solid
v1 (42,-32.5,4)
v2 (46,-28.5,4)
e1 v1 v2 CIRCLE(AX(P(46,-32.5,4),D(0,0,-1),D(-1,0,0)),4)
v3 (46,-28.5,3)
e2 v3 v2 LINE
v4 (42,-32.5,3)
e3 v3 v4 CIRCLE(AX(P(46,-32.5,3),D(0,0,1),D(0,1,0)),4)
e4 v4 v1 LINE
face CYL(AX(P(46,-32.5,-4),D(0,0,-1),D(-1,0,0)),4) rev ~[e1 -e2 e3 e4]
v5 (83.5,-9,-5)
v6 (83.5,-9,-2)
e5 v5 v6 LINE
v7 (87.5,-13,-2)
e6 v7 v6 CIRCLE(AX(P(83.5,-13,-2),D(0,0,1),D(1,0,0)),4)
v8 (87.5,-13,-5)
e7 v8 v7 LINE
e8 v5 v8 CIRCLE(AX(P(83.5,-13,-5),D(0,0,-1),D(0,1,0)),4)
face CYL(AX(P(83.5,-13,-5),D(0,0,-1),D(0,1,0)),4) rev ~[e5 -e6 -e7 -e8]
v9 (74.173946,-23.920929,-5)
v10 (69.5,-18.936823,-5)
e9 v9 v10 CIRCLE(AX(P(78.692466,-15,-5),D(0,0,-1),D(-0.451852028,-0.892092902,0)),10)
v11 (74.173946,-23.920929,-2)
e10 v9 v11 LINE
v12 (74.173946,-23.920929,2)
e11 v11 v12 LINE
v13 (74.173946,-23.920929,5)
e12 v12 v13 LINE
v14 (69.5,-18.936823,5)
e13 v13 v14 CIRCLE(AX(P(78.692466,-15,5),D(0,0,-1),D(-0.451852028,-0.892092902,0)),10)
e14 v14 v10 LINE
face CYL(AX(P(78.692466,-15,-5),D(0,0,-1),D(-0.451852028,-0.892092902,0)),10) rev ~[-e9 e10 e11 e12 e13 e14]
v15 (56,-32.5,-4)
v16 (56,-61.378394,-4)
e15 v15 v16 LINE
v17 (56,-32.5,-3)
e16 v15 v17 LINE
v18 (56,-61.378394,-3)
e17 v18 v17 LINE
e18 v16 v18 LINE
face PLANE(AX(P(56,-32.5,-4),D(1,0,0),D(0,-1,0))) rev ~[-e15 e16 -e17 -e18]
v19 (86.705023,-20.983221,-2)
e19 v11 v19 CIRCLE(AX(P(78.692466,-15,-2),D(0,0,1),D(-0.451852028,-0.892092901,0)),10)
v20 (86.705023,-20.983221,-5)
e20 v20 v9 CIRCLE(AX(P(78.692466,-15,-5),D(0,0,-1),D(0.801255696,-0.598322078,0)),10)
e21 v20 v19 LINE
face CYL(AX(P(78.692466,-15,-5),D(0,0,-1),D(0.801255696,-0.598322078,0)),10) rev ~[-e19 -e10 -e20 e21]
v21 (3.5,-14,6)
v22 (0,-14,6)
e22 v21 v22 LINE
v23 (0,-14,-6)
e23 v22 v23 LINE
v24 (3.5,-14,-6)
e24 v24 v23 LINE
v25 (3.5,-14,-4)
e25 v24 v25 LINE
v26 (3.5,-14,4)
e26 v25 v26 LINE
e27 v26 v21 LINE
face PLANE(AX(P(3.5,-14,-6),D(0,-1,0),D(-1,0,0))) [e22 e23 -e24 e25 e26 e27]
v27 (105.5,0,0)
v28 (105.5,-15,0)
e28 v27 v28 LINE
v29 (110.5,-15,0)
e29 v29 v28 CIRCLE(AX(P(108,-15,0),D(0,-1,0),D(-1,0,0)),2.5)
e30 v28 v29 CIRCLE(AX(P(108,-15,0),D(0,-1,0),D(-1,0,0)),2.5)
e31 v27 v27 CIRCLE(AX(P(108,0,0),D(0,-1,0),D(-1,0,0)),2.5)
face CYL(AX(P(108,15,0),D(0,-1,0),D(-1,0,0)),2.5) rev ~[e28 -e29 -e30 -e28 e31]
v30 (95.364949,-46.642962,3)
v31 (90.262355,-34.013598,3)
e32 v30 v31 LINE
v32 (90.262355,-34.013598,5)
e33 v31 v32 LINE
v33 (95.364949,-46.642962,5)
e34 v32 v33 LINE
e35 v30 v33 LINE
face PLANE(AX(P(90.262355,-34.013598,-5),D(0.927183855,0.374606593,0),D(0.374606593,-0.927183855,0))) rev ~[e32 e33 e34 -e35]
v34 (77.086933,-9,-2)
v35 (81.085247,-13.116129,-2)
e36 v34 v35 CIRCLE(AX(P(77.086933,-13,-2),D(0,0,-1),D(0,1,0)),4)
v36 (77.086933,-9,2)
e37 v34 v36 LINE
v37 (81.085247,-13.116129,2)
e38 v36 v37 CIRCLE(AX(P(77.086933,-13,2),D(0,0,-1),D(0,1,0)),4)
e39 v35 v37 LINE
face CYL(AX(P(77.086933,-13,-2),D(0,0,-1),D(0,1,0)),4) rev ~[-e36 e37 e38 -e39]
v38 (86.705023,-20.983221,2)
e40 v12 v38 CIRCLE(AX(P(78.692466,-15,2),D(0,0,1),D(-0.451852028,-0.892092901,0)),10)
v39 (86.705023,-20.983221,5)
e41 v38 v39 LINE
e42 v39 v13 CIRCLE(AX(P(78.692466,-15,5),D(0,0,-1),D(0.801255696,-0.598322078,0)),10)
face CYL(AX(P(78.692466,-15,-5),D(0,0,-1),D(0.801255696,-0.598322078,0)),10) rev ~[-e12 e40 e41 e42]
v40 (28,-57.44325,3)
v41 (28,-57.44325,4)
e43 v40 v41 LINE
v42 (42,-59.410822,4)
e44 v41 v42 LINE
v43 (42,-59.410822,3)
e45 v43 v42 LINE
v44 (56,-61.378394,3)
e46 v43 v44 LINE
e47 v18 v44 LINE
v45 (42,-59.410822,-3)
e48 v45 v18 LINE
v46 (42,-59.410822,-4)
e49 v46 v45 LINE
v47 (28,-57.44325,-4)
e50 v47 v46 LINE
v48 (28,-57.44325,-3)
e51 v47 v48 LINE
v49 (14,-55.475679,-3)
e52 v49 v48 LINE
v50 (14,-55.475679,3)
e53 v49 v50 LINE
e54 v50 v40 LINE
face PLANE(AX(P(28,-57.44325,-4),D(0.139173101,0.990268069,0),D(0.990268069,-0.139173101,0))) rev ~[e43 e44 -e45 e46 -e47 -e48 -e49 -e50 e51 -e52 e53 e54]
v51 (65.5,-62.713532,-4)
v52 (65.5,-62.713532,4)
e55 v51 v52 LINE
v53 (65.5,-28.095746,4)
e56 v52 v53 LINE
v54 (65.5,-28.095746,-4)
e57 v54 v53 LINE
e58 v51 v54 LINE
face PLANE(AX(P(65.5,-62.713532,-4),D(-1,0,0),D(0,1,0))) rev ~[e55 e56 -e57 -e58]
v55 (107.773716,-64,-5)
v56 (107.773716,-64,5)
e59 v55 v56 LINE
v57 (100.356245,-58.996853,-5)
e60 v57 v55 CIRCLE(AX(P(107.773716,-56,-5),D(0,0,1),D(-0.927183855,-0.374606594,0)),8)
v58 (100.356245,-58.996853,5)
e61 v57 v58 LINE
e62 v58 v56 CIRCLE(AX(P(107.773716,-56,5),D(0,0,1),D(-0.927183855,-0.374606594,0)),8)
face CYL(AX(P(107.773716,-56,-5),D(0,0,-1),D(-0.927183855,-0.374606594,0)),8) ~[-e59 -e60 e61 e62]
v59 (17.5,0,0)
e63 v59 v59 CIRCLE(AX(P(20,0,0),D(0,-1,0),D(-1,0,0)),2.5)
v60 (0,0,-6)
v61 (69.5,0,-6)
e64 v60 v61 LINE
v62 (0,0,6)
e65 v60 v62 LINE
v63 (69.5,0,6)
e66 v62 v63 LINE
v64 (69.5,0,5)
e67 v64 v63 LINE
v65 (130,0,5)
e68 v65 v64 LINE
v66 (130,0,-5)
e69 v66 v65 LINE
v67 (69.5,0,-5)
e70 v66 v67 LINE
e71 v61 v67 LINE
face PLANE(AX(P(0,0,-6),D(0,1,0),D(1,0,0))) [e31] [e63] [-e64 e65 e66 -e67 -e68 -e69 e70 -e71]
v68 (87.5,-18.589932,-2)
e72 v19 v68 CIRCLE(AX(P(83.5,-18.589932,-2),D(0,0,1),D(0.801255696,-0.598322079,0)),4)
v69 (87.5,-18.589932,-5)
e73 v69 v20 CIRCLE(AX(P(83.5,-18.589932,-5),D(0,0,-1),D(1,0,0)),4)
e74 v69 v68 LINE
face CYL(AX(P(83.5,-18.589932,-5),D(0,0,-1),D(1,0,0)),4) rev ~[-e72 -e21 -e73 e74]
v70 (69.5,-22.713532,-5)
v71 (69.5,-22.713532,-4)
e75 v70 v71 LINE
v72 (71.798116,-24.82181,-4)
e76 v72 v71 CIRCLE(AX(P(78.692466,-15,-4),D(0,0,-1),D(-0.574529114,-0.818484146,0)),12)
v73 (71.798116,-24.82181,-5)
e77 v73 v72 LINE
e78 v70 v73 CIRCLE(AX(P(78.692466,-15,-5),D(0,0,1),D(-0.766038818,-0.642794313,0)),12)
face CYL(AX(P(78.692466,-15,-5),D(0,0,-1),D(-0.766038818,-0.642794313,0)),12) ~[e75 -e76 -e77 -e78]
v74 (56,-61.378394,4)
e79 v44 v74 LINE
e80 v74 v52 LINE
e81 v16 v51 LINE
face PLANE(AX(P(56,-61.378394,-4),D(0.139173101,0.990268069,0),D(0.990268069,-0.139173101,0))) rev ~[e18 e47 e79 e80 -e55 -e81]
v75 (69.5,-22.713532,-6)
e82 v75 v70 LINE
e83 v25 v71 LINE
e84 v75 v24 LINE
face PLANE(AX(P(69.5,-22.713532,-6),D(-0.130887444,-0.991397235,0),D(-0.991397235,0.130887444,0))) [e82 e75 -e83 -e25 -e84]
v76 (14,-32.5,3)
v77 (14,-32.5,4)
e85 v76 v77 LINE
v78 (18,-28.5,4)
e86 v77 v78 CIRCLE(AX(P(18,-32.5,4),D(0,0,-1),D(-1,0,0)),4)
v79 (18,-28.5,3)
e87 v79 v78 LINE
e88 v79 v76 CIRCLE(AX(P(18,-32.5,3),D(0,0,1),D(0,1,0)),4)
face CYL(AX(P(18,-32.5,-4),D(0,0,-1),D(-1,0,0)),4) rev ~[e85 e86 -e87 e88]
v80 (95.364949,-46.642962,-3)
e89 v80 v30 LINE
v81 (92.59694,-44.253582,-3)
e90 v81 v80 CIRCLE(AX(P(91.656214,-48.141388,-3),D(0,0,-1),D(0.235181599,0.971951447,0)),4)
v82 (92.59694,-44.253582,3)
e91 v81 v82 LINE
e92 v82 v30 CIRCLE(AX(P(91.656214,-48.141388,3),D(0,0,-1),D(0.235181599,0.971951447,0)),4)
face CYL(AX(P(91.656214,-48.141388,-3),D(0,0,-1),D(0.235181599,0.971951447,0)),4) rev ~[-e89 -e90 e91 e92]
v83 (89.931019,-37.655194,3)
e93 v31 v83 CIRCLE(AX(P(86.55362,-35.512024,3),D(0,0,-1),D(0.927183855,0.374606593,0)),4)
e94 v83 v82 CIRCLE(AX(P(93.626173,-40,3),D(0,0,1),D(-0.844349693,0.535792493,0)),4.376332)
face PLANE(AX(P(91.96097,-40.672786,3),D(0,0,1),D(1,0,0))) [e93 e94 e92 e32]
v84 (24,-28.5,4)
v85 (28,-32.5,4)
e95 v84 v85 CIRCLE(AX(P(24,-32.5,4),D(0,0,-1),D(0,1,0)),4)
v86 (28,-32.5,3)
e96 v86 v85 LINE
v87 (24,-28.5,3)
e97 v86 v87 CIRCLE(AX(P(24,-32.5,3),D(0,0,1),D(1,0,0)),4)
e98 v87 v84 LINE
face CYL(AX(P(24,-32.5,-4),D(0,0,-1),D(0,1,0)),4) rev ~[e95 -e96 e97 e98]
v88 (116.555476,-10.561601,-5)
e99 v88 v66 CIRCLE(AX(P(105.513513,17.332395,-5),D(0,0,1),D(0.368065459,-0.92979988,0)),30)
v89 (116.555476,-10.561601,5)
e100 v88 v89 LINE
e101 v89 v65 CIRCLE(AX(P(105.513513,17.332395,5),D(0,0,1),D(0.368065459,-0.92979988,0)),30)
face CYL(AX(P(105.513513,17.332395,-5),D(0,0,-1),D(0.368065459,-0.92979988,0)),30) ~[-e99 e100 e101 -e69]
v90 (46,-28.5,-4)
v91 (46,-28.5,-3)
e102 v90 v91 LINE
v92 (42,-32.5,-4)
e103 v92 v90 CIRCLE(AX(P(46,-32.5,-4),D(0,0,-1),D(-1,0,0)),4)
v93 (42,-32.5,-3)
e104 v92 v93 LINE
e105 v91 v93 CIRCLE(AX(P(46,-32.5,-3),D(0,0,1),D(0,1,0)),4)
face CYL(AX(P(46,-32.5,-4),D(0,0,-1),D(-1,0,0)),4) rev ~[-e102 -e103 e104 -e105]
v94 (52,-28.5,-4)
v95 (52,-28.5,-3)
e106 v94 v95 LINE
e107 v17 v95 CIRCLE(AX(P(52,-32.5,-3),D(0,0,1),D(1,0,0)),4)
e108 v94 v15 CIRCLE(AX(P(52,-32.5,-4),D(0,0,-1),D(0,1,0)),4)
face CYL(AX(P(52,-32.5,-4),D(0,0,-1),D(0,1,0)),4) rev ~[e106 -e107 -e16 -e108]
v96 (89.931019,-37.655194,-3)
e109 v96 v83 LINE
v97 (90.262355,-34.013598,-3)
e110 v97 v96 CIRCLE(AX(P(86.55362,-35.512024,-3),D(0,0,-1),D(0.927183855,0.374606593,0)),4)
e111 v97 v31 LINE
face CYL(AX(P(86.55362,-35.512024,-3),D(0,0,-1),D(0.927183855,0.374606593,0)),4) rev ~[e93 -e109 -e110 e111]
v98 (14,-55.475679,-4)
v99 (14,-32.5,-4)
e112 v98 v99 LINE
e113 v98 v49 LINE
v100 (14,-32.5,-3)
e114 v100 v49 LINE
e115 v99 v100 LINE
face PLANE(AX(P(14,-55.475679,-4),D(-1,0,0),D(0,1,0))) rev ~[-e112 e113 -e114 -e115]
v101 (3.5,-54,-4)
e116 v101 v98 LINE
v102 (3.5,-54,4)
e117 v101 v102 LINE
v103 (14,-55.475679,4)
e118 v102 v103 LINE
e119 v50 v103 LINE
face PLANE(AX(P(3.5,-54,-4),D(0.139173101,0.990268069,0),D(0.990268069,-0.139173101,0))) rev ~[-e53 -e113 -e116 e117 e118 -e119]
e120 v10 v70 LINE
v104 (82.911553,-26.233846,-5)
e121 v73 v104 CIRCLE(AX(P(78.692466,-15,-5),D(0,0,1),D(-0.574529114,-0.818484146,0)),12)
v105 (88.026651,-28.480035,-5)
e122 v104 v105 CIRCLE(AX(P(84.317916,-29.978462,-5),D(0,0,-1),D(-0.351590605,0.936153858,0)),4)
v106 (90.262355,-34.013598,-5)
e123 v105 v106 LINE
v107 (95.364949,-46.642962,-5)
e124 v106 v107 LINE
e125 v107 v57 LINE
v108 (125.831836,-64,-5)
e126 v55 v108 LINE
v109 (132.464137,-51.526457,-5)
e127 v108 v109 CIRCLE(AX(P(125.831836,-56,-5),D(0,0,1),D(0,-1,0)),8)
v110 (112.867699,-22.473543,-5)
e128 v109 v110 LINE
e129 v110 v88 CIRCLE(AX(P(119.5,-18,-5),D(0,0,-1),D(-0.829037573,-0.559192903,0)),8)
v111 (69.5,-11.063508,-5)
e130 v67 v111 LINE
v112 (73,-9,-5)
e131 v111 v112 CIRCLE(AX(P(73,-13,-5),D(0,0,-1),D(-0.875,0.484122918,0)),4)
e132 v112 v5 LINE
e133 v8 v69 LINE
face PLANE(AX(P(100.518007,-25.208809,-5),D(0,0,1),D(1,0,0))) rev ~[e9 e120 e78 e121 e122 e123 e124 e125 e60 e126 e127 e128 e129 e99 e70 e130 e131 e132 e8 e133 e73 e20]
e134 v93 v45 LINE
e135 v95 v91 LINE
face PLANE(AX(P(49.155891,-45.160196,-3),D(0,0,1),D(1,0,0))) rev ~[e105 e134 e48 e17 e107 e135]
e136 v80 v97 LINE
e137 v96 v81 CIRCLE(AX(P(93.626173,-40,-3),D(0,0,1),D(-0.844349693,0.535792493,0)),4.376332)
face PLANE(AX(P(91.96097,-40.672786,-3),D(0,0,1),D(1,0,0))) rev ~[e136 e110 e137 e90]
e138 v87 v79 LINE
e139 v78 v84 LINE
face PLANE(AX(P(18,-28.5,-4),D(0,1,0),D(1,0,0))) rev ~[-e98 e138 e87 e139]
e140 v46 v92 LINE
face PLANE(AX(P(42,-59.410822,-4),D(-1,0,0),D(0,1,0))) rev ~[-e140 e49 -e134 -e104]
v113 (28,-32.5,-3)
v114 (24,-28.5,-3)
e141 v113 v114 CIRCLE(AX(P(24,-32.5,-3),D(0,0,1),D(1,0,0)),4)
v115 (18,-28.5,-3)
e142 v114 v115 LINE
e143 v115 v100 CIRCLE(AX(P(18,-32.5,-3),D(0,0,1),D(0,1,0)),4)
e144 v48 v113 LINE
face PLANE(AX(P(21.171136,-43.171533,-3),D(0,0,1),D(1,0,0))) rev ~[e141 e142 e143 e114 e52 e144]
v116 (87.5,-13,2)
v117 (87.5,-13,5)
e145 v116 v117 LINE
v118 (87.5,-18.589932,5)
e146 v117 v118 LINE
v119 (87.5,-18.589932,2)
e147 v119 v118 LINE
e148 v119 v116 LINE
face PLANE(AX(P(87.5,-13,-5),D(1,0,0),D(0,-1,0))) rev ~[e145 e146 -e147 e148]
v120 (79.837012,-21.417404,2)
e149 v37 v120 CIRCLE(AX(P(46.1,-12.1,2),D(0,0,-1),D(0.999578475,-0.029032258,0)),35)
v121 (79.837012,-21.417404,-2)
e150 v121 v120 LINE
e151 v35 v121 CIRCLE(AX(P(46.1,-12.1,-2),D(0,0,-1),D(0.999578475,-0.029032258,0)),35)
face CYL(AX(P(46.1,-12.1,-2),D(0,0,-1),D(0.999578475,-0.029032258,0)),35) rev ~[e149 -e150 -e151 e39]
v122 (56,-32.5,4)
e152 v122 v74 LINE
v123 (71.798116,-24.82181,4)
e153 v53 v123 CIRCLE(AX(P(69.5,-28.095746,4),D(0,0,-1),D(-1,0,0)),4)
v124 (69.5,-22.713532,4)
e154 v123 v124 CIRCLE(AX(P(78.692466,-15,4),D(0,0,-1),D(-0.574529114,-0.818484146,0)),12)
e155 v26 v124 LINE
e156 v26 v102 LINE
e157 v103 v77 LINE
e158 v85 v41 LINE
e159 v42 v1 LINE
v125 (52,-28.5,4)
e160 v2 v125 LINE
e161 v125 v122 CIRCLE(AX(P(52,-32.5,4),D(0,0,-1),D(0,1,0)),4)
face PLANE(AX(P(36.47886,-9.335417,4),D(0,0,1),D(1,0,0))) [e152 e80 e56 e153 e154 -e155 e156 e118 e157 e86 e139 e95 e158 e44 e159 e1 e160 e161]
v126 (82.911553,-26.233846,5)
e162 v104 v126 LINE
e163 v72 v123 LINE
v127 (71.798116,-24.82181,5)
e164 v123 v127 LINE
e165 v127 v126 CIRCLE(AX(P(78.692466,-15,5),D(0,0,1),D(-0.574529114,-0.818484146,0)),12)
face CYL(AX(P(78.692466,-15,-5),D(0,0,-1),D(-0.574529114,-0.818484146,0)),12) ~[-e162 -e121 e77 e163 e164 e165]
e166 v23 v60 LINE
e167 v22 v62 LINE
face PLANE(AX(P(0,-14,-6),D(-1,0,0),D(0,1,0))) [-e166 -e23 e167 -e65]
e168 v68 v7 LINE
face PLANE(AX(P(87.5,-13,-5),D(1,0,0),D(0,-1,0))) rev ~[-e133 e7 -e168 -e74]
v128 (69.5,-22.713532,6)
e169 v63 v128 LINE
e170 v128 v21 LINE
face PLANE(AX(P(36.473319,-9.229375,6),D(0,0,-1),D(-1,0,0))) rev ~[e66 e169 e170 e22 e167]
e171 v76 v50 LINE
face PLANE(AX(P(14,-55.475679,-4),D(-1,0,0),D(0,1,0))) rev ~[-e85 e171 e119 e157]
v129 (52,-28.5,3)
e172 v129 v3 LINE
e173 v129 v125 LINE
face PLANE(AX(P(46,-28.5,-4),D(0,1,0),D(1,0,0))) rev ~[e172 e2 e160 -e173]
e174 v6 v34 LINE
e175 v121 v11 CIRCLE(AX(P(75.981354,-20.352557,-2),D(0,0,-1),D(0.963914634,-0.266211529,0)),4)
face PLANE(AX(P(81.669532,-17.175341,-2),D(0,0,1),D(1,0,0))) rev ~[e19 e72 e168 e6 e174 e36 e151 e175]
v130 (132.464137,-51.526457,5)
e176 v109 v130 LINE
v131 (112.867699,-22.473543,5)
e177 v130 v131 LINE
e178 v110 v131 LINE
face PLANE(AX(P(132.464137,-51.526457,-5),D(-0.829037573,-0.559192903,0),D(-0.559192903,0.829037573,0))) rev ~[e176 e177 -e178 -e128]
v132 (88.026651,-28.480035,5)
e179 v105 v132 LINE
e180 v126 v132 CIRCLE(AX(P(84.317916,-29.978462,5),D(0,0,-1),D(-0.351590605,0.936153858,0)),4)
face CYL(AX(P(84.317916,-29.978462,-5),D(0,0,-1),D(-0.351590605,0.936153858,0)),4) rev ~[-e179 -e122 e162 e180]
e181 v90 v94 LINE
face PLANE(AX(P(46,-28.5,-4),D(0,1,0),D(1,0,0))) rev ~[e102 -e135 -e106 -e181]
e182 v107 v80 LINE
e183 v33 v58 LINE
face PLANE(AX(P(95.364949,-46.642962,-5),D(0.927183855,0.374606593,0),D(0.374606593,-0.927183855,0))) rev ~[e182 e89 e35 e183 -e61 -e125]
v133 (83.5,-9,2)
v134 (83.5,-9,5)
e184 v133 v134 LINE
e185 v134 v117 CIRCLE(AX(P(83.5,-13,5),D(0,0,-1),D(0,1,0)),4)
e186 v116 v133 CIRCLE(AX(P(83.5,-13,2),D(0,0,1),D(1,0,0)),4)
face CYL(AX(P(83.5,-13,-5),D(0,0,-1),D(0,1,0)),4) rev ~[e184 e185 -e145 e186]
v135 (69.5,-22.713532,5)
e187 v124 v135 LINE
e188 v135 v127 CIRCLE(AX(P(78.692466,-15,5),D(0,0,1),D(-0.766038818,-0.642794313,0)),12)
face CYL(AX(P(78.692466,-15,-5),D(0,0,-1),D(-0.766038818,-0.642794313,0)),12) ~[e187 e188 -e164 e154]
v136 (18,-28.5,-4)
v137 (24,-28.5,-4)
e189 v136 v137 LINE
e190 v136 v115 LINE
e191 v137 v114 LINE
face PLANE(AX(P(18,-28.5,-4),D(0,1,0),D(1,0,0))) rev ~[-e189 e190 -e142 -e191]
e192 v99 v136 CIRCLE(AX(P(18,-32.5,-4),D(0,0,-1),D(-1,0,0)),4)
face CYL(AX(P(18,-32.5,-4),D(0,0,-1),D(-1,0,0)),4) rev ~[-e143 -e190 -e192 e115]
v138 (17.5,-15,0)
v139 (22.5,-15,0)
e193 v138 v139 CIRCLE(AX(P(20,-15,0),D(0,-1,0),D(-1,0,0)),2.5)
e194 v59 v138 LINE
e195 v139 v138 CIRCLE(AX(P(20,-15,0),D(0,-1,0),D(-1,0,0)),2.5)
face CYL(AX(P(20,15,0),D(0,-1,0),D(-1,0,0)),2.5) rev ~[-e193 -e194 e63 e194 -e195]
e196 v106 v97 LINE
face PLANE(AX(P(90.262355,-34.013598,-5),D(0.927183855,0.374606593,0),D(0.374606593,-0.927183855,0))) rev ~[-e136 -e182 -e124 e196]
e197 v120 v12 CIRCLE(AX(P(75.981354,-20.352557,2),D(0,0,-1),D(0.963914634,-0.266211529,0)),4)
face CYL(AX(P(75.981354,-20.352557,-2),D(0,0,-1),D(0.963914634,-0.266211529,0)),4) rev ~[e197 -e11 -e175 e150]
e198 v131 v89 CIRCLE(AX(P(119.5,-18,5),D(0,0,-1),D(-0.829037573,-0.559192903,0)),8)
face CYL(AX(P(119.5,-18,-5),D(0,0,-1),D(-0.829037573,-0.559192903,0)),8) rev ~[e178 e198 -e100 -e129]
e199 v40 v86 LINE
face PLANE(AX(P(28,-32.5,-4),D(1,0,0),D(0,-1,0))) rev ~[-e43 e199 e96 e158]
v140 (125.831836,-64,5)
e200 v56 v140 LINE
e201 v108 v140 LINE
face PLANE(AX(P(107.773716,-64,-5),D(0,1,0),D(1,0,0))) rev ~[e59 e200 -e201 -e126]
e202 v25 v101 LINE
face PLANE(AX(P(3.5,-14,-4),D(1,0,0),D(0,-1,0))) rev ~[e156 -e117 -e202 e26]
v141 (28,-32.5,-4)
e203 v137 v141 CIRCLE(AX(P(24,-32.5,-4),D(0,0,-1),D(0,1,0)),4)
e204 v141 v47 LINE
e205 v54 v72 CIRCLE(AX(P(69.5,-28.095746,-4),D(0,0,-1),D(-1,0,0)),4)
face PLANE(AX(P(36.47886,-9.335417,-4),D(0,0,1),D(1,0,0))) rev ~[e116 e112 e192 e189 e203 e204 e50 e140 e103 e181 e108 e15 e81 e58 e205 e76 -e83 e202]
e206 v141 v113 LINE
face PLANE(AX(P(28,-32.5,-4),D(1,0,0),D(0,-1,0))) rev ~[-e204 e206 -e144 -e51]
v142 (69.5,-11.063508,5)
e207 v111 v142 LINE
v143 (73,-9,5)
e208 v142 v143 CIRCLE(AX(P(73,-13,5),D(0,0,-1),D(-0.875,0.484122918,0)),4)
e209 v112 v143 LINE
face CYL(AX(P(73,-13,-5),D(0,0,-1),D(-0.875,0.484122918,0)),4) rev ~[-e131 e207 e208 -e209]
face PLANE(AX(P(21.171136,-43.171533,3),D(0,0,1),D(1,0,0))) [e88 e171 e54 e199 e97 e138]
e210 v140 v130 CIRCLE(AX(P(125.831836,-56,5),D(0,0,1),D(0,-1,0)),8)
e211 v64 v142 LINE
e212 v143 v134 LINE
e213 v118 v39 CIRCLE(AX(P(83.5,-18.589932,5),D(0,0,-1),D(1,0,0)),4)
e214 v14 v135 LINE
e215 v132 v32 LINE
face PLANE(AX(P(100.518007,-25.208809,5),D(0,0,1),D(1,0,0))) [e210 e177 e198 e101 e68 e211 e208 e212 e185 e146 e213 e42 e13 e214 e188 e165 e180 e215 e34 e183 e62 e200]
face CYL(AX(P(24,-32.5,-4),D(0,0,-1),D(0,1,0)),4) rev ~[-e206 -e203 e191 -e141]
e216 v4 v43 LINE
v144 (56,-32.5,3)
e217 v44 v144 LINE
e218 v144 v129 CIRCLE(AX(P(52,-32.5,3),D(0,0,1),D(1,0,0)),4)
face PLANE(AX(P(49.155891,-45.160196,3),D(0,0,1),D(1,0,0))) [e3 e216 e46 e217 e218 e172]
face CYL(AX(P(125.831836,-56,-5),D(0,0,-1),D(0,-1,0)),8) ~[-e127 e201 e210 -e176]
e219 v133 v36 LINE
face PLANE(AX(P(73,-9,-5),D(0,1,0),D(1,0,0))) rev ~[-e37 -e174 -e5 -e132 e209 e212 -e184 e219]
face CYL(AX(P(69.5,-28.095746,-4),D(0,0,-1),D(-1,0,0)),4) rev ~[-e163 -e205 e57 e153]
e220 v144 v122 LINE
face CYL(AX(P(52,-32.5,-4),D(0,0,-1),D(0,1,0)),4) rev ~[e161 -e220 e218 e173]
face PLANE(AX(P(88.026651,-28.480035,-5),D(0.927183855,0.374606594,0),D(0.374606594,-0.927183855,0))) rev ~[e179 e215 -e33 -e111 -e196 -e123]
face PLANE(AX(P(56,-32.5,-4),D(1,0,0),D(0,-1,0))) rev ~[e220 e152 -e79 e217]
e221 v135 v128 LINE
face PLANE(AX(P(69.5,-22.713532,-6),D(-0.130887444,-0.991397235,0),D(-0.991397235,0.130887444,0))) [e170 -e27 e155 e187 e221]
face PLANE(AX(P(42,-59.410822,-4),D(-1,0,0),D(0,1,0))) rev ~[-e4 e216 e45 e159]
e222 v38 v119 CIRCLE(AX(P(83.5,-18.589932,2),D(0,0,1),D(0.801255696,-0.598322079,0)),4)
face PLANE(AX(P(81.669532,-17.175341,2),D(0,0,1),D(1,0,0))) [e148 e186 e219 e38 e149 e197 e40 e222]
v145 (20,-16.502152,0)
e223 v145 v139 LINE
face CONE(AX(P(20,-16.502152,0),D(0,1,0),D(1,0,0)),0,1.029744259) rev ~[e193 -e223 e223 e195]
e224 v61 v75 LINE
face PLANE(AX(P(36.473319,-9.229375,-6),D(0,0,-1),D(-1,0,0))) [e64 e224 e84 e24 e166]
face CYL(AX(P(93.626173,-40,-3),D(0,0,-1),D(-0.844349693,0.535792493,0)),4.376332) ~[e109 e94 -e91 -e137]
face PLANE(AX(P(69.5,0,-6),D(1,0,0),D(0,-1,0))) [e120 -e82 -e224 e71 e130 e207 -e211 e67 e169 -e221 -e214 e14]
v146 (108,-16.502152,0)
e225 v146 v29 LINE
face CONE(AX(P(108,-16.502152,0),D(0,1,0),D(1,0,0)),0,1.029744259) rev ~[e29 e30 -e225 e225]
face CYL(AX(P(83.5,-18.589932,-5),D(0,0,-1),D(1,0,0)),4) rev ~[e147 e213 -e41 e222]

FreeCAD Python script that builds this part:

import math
import FreeCAD as App
import Part
import Sketcher
Q = App.Units.Quantity


def add_polygon(sketch, points):
    """Adds a closed chain of lines whose ends are joined by coincident constraints."""
    first, n = sketch.GeometryCount, len(points)
    for a, b in zip(points, points[1:] + points[:1]):
        sketch.addGeometry(Part.LineSegment(App.Vector(*a, 0), App.Vector(*b, 0)), False)
    for i in range(n):
        sketch.addConstraint(Sketcher.Constraint("Coincident", first + i, 2, first + (i + 1) % n, 1))

doc = App.newDocument("Part")
params = doc.addObject("Spreadsheet::Sheet", "Params")
for row, (alias, value) in enumerate([
    ("sketch1_radius", "4 mm"),
    ("sketch1_radius2", "12 mm"),
    ("sketch1_radius3", "10 mm"),
    ("sketch1_width", "6 mm"),
    ("sketch1_height", "14 mm"),
    ("pad1_length", "4 mm"),
    ("pad1_length2", "4 mm"),
    ("sketch2_radius", "4 mm"),
    ("sketch2_radius2", "10 mm"),
    ("sketch2_radius3", "12 mm"),
    ("sketch2_radius4", "8 mm"),
    ("sketch2_radius5", "30 mm"),
    ("pad2_length", "5 mm"),
    ("pad2_length2", "5 mm"),
    ("sketch3_radius", "4 mm"),
    ("sketch3_radius2", "10 mm"),
    ("sketch3_radius3", "35 mm"),
    ("pad3_length", "2 mm"),
    ("pad3_length2", "2 mm"),
    ("sketch4_radius", "4 mm"),
    ("pad4_length", "3 mm"),
    ("pad4_length2", "3 mm"),
    ("sketch5_radius", "4 mm"),
    ("sketch5_width", "6 mm"),
    ("pad5_length", "3 mm"),
    ("pad5_length2", "3 mm"),
    ("sketch6_height", "14 mm"),
    ("sketch6_width", "69.5 mm"),
    ("sketch6_width2", "3.5 mm"),
    ("pad6_length", "6 mm"),
    ("pad6_length2", "6 mm"),
    ("sketch7_diameter", "5 mm"),
    ("hole_diameter", "5 mm"),
    ("hole_depth", "15 mm"),
], start=1):
    params.set(f"A{row}", alias)
    params.set(f"B{row}", "=" + value)
    params.setAlias(f"B{row}", alias)

body = doc.addObject("PartDesign::Body", "Body")

sketch1 = body.newObject("Sketcher::SketchObject", "Sketch")
sketch1.AttachmentSupport = (doc.getObject("XY_Plane"), [""])
sketch1.MapMode = "FlatFace"
sketch1.addGeometry([
    Part.LineSegment(App.Vector(69.5, 0, 0), App.Vector(0, 0, 0)),
    Part.LineSegment(App.Vector(0, 0, 0), App.Vector(0, -14, 0)),
    Part.LineSegment(App.Vector(0, -14, 0), App.Vector(3.5, -14, 0)),
    Part.LineSegment(App.Vector(3.5, -14, 0), App.Vector(3.5, -54, 0)),
    Part.LineSegment(App.Vector(3.5, -54, 0), App.Vector(14, -55.5, 0)),
    Part.LineSegment(App.Vector(14, -55.5, 0), App.Vector(14, -32.5, 0)),
    Part.ArcOfCircle(Part.Circle(App.Vector(18, -32.5, 0), App.Vector(0, 0, 1), 4), math.radians(90), math.radians(180)),
    Part.LineSegment(App.Vector(18, -28.5, 0), App.Vector(24, -28.5, 0)),
    Part.ArcOfCircle(Part.Circle(App.Vector(24, -32.5, 0), App.Vector(0, 0, 1), 4), math.radians(0), math.radians(90)),
    Part.LineSegment(App.Vector(28, -32.5, 0), App.Vector(28, -57.4, 0)),
    Part.LineSegment(App.Vector(28, -57.4, 0), App.Vector(42, -59.4, 0)),
    Part.LineSegment(App.Vector(42, -59.4, 0), App.Vector(42, -32.5, 0)),
    Part.ArcOfCircle(Part.Circle(App.Vector(46, -32.5, 0), App.Vector(0, 0, 1), 4), math.radians(90), math.radians(180)),
    Part.LineSegment(App.Vector(46, -28.5, 0), App.Vector(52, -28.5, 0)),
    Part.ArcOfCircle(Part.Circle(App.Vector(52, -32.5, 0), App.Vector(0, 0, 1), 4), math.radians(0), math.radians(90)),
    Part.LineSegment(App.Vector(56, -32.5, 0), App.Vector(56, -61.4, 0)),
    Part.LineSegment(App.Vector(56, -61.4, 0), App.Vector(65.5, -62.7, 0)),
    Part.LineSegment(App.Vector(65.5, -62.7, 0), App.Vector(65.5, -28.1, 0)),
    Part.ArcOfCircle(Part.Circle(App.Vector(69.5, -28.1, 0), App.Vector(0, 0, 1), 4), math.radians(55), math.radians(180)),
    Part.ArcOfCircle(Part.Circle(App.Vector(78.7, -15, 0), App.Vector(0, 0, 1), 12), math.radians(-140), math.radians(-125.07)),
    Part.LineSegment(App.Vector(69.5, -22.7, 0), App.Vector(69.5, -18.9, 0)),
    Part.ArcOfCircle(Part.Circle(App.Vector(78.7, -15, 0), App.Vector(0, 0, 1), 10), math.radians(-165.75), math.radians(-156.82)),
    Part.LineSegment(App.Vector(69, -17.5, 0), App.Vector(69, -13, 0)),
    Part.ArcOfCircle(Part.Circle(App.Vector(73, -13, 0), App.Vector(0, 0, 1), 4), math.radians(151), math.radians(180)),
    Part.LineSegment(App.Vector(69.5, -11.1, 0), App.Vector(69.5, 0, 0)),
], False)
sketch1.addConstraint([
    Sketcher.Constraint("Coincident", 0, 2, 1, 1),
    Sketcher.Constraint("Coincident", 1, 2, 2, 1),
    Sketcher.Constraint("Coincident", 2, 2, 3, 1),
    Sketcher.Constraint("Coincident", 3, 2, 4, 1),
    Sketcher.Constraint("Coincident", 4, 2, 5, 1),
    Sketcher.Constraint("Tangent", 5, 2, 6, 2),
    Sketcher.Constraint("Tangent", 6, 1, 7, 1),
    Sketcher.Constraint("Tangent", 7, 2, 8, 2),
    Sketcher.Constraint("Tangent", 8, 1, 9, 1),
    Sketcher.Constraint("Coincident", 9, 2, 10, 1),
    Sketcher.Constraint("Coincident", 10, 2, 11, 1),
    Sketcher.Constraint("Tangent", 11, 2, 12, 2),
    Sketcher.Constraint("Tangent", 12, 1, 13, 1),
    Sketcher.Constraint("Tangent", 13, 2, 14, 2),
    Sketcher.Constraint("Tangent", 14, 1, 15, 1),
    Sketcher.Constraint("Coincident", 15, 2, 16, 1),
    Sketcher.Constraint("Coincident", 16, 2, 17, 1),
    Sketcher.Constraint("Tangent", 17, 2, 18, 2),
    Sketcher.Constraint("Tangent", 18, 1, 19, 2),
    Sketcher.Constraint("Coincident", 19, 1, 20, 1),
    Sketcher.Constraint("Coincident", 20, 2, 21, 2),
    Sketcher.Constraint("Coincident", 21, 1, 22, 1),
    Sketcher.Constraint("Tangent", 22, 2, 23, 2),
    Sketcher.Constraint("Coincident", 23, 1, 24, 1),
    Sketcher.Constraint("Coincident", 24, 2, 0, 1),
    Sketcher.Constraint("Horizontal", 0),
    Sketcher.Constraint("Vertical", 1),
    Sketcher.Constraint("Horizontal", 2),
    Sketcher.Constraint("Vertical", 3),
    Sketcher.Constraint("Vertical", 5),
    Sketcher.Constraint("Horizontal", 7),
    Sketcher.Constraint("Vertical", 9),
    Sketcher.Constraint("Vertical", 11),
    Sketcher.Constraint("Horizontal", 13),
    Sketcher.Constraint("Vertical", 15),
    Sketcher.Constraint("Vertical", 17),
    Sketcher.Constraint("Vertical", 20),
    Sketcher.Constraint("Vertical", 22),
    Sketcher.Constraint("Vertical", 24),
    Sketcher.Constraint("Coincident", 0, 2, -1, 1),
    Sketcher.Constraint("Coincident", 21, 3, 19, 3),
    Sketcher.Constraint("Equal", 6, 8),
    Sketcher.Constraint("Equal", 8, 12),
    Sketcher.Constraint("Equal", 12, 14),
    Sketcher.Constraint("Equal", 14, 18),
    Sketcher.Constraint("Equal", 18, 23),
    Sketcher.Constraint("Parallel", 4, 10),
    Sketcher.Constraint("Parallel", 10, 16),
    Sketcher.Constraint("Horizontal", 8, 3, 12, 3),
    Sketcher.Constraint("Vertical", 18, 3, 19, 1),
    Sketcher.Constraint("Vertical", 20, 2, 23, 1),
    Sketcher.Constraint("Equal", 7, 13),
    Sketcher.Constraint("Radius", 6, Q("4 mm")),
    Sketcher.Constraint("Radius", 19, Q("12 mm")),
    Sketcher.Constraint("Radius", 21, Q("10 mm")),
    Sketcher.Constraint("DistanceX", 7, 1, 7, 2, Q("6 mm")),
    Sketcher.Constraint("DistanceY", 1, 2, 1, 1, Q("14 mm")),
    Sketcher.Constraint("DistanceY", 3, 2, 3, 1, Q("40 mm")),
    Sketcher.Constraint("Angle", 4, Q("-8 deg")),
    Sketcher.Constraint("DistanceX", 0, 2, 0, 1, Q("69.5 mm")),
    Sketcher.Constraint("DistanceX", 2, 1, 2, 2, Q("3.5 mm")),
    Sketcher.Constraint("DistanceX", -1, 1, 6, 3, Q("18 mm")),
    Sketcher.Constraint("DistanceX", -1, 1, 12, 3, Q("46 mm")),
    Sketcher.Constraint("DistanceY", 19, 3, -1, 1, Q("15 mm")),
    Sketcher.Constraint("DistanceX", -1, 1, 23, 3, Q("73 mm")),
    Sketcher.Constraint("DistanceY", 23, 3, -1, 1, Q("13 mm")),
    Sketcher.Constraint("DistanceY", 6, 3, -1, 1, Q("32.5 mm")),
    Sketcher.Constraint("DistanceY", 9, 2, 9, 1, Q("24.94325 mm")),
    Sketcher.Constraint("DistanceY", 20, 1, 20, 2, Q("3.776709 mm")),
    Sketcher.Constraint("DistanceY", 15, 2, 15, 1, Q("28.878394 mm")),
])
sketch1.setExpression("Constraints[52]", "Params.sketch1_radius")
sketch1.setExpression("Constraints[53]", "Params.sketch1_radius2")
sketch1.setExpression("Constraints[54]", "Params.sketch1_radius3")
sketch1.setExpression("Constraints[55]", "Params.sketch1_width")
sketch1.setExpression("Constraints[56]", "Params.sketch1_height")
pad1 = body.newObject("PartDesign::Pad", "Pad")
pad1.Profile = sketch1
pad1.Type = "TwoLengths"
pad1.setExpression("Length", "Params.pad1_length")
pad1.setExpression("Length2", "Params.pad1_length2")

sketch2 = body.newObject("Sketcher::SketchObject", "Sketch001")
sketch2.AttachmentSupport = (doc.getObject("XY_Plane"), [""])
sketch2.MapMode = "FlatFace"
sketch2.addGeometry([
    Part.LineSegment(App.Vector(130, 0, 0), App.Vector(69.5, 0, 0)),
    Part.LineSegment(App.Vector(69.5, 0, 0), App.Vector(69.5, -11.1, 0)),
    Part.ArcOfCircle(Part.Circle(App.Vector(73, -13, 0), App.Vector(0, 0, 1), 4), math.radians(90), math.radians(151)),
    Part.LineSegment(App.Vector(73, -9, 0), App.Vector(83.5, -9, 0)),
    Part.ArcOfCircle(Part.Circle(App.Vector(83.5, -13, 0), App.Vector(0, 0, 1), 4), math.radians(0), math.radians(90)),
    Part.LineSegment(App.Vector(87.5, -13, 0), App.Vector(87.5, -18.6, 0)),
    Part.ArcOfCircle(Part.Circle(App.Vector(83.5, -18.6, 0), App.Vector(0, 0, 1), 4), math.radians(-37), math.radians(0)),
    Part.ArcOfCircle(Part.Circle(App.Vector(78.7, -15, 0), App.Vector(0, 0, 1), 10), math.radians(-117), math.radians(-37)),
    Part.ArcOfCircle(Part.Circle(App.Vector(78.7, -15, 0), App.Vector(0, 0, 1), 10), math.radians(-157), math.radians(-117)),
    Part.LineSegment(App.Vector(69.5, -18.9, 0), App.Vector(69.5, -22.7, 0)),
    Part.ArcOfCircle(Part.Circle(App.Vector(78.7, -15, 0), App.Vector(0, 0, 1), 12), math.radians(-140), math.radians(-125.07)),
    Part.ArcOfCircle(Part.Circle(App.Vector(78.7, -15, 0), App.Vector(0, 0, 1), 12), math.radians(-125), math.radians(-69)),
    Part.ArcOfCircle(Part.Circle(App.Vector(84.3, -30, 0), App.Vector(0, 0, 1), 4), math.radians(22), math.radians(111)),
    Part.LineSegment(App.Vector(88, -28.5, 0), App.Vector(90.3, -34, 0)),
    Part.LineSegment(App.Vector(90.3, -34, 0), App.Vector(95.4, -46.6, 0)),
    Part.LineSegment(App.Vector(95.4, -46.6, 0), App.Vector(100.4, -59, 0)),
    Part.ArcOfCircle(Part.Circle(App.Vector(107.8, -56, 0), App.Vector(0, 0, 1), 8), math.radians(-158), math.radians(-90)),
    Part.LineSegment(App.Vector(107.8, -64, 0), App.Vector(125.8, -64, 0)),
    Part.ArcOfCircle(Part.Circle(App.Vector(125.8, -56, 0), App.Vector(0, 0, 1), 8), math.radians(-90), math.radians(34)),
    Part.LineSegment(App.Vector(132.5, -51.5, 0), App.Vector(112.9, -22.5, 0)),
    Part.ArcOfCircle(Part.Circle(App.Vector(119.5, -18, 0), App.Vector(0, 0, 1), 8), math.radians(112), math.radians(214)),
    Part.ArcOfCircle(Part.Circle(App.Vector(105.5, 17.3, 0), App.Vector(0, 0, 1), 30), math.radians(-68), math.radians(-35)),
], False)
sketch2.addConstraint([
    Sketcher.Constraint("Coincident", 0, 2, 1, 1),
    Sketcher.Constraint("Coincident", 1, 2, 2, 2),
    Sketcher.Constraint("Tangent", 2, 1, 3, 1),
    Sketcher.Constraint("Tangent", 3, 2, 4, 2),
    Sketcher.Constraint("Tangent", 4, 1, 5, 1),
    Sketcher.Constraint("Tangent", 5, 2, 6, 2),
    Sketcher.Constraint("Tangent", 6, 1, 7, 2),
    Sketcher.Constraint("Tangent", 7, 1, 8, 2),
    Sketcher.Constraint("Coincident", 8, 1, 9, 1),
    Sketcher.Constraint("Coincident", 9, 2, 10, 1),
    Sketcher.Constraint("Tangent", 10, 2, 11, 1),
    Sketcher.Constraint("Tangent", 11, 2, 12, 2),
    Sketcher.Constraint("Tangent", 12, 1, 13, 1),
    Sketcher.Constraint("Coincident", 13, 2, 14, 1),
    Sketcher.Constraint("Coincident", 14, 2, 15, 1),
    Sketcher.Constraint("Tangent", 15, 2, 16, 1),
    Sketcher.Constraint("Tangent", 16, 2, 17, 1),
    Sketcher.Constraint("Tangent", 17, 2, 18, 1),
    Sketcher.Constraint("Tangent", 18, 2, 19, 1),
    Sketcher.Constraint("Tangent", 19, 2, 20, 2),
    Sketcher.Constraint("Tangent", 20, 1, 21, 1),
    Sketcher.Constraint("Coincident", 21, 2, 0, 1),
    Sketcher.Constraint("Horizontal", 0),
    Sketcher.Constraint("Vertical", 1),
    Sketcher.Constraint("Horizontal", 3),
    Sketcher.Constraint("Vertical", 5),
    Sketcher.Constraint("Vertical", 9),
    Sketcher.Constraint("Horizontal", 17),
    Sketcher.Constraint("Coincident", 10, 3, 7, 3),
    Sketcher.Constraint("Equal", 2, 4),
    Sketcher.Constraint("Equal", 4, 6),
    Sketcher.Constraint("Equal", 7, 8),
    Sketcher.Constraint("Equal", 10, 11),
    Sketcher.Constraint("Equal", 6, 12),
    Sketcher.Constraint("Equal", 16, 18),
    Sketcher.Constraint("Equal", 18, 20),
    Sketcher.Constraint("PointOnObject", 0, 2, -1),
    Sketcher.Constraint("Parallel", 13, 14),
    Sketcher.Constraint("Parallel", 14, 15),
    Sketcher.Constraint("Vertical", 1, 2, 8, 1),
    Sketcher.Constraint("Radius", 2, Q("4 mm")),
    Sketcher.Constraint("Radius", 7, Q("10 mm")),
    Sketcher.Constraint("Radius", 10, Q("12 mm")),
    Sketcher.Constraint("Radius", 16, Q("8 mm")),
    Sketcher.Constraint("Radius", 21, Q("30 mm")),
    Sketcher.Constraint("Angle", 13, Q("-68 deg")),
    Sketcher.Constraint("Angle", 19, Q("124 deg")),
    Sketcher.Constraint("DistanceX", 0, 2, 0, 1, Q("60.5 mm")),
    Sketcher.Constraint("DistanceX", 3, 1, 3, 2, Q("10.5 mm")),
    Sketcher.Constraint("DistanceX", -1, 1, 2, 3, Q("73 mm")),
    Sketcher.Constraint("DistanceY", 2, 3, -1, 1, Q("13 mm")),
    Sketcher.Constraint("DistanceY", 7, 3, -1, 1, Q("15 mm")),
    Sketcher.Constraint("DistanceY", 16, 3, -1, 1, Q("56 mm")),
    Sketcher.Constraint("DistanceY", 20, 3, -1, 1, Q("18 mm")),
    Sketcher.Constraint("DistanceX", -1, 1, 21, 2, Q("130 mm")),
    Sketcher.Constraint("DistanceX", 6, 3, 20, 3, Q("36 mm")),
    Sketcher.Constraint("Distance", 15, Q("13.324101 mm")),
    Sketcher.Constraint("DistanceX", 17, 1, 17, 2, Q("18.05812 mm")),
    Sketcher.Constraint("DistanceY", 9, 2, 9, 1, Q("3.776709 mm")),
    Sketcher.Constraint("Distance", 13, Q("5.968139 mm")),
    Sketcher.Constraint("DistanceY", 7, 1, -1, 1, Q("23.920929 mm")),
    Sketcher.Constraint("DistanceY", 10, 2, -1, 1, Q("24.82181 mm")),
])
sketch2.setExpression("Constraints[40]", "Params.sketch2_radius")
sketch2.setExpression("Constraints[41]", "Params.sketch2_radius2")
sketch2.setExpression("Constraints[42]", "Params.sketch2_radius3")
sketch2.setExpression("Constraints[43]", "Params.sketch2_radius4")
sketch2.setExpression("Constraints[44]", "Params.sketch2_radius5")
pad2 = body.newObject("PartDesign::Pad", "Pad001")
pad2.Profile = sketch2
pad2.Type = "TwoLengths"
pad2.setExpression("Length", "Params.pad2_length")
pad2.setExpression("Length2", "Params.pad2_length2")

sketch3 = body.newObject("Sketcher::SketchObject", "Sketch002")
sketch3.AttachmentSupport = (doc.getObject("XY_Plane"), [""])
sketch3.MapMode = "FlatFace"
sketch3.addGeometry([
    Part.ArcOfCircle(Part.Circle(App.Vector(76, -20.4, 0), App.Vector(0, 0, 1), 4), math.radians(-117), math.radians(-15)),
    Part.ArcOfCircle(Part.Circle(App.Vector(78.7, -15, 0), App.Vector(0, 0, 1), 10), math.radians(-117), math.radians(-37)),
    Part.ArcOfCircle(Part.Circle(App.Vector(83.5, -18.6, 0), App.Vector(0, 0, 1), 4), math.radians(-37), math.radians(0)),
    Part.LineSegment(App.Vector(87.5, -18.6, 0), App.Vector(87.5, -13, 0)),
    Part.ArcOfCircle(Part.Circle(App.Vector(83.5, -13, 0), App.Vector(0, 0, 1), 4), math.radians(0), math.radians(90)),
    Part.LineSegment(App.Vector(83.5, -9, 0), App.Vector(77.1, -9, 0)),
    Part.ArcOfCircle(Part.Circle(App.Vector(77.1, -13, 0), App.Vector(0, 0, 1), 4), math.radians(-2), math.radians(90)),
    Part.ArcOfCircle(Part.Circle(App.Vector(46.1, -12.1, 0), App.Vector(0, 0, 1), 35), math.radians(-15.44), math.radians(-1.66)),
], False)
sketch3.addConstraint([
    Sketcher.Constraint("Tangent", 0, 1, 1, 1),
    Sketcher.Constraint("Tangent", 1, 2, 2, 1),
    Sketcher.Constraint("Tangent", 2, 2, 3, 1),
    Sketcher.Constraint("Tangent", 3, 2, 4, 1),
    Sketcher.Constraint("Tangent", 4, 2, 5, 1),
    Sketcher.Constraint("Tangent", 5, 2, 6, 2),
    Sketcher.Constraint("Tangent", 6, 1, 7, 2),
    Sketcher.Constraint("Tangent", 7, 1, 0, 2),
    Sketcher.Constraint("Vertical", 3),
    Sketcher.Constraint("Horizontal", 5),
    Sketcher.Constraint("Equal", 0, 2),
    Sketcher.Constraint("Equal", 2, 4),
    Sketcher.Constraint("Equal", 4, 6),
    Sketcher.Constraint("Radius", 0, Q("4 mm")),
    Sketcher.Constraint("Radius", 1, Q("10 mm")),
    Sketcher.Constraint("Radius", 7, Q("35 mm")),
    Sketcher.Constraint("DistanceY", 1, 3, -1, 1, Q("15 mm")),
    Sketcher.Constraint("DistanceY", 4, 3, -1, 1, Q("13 mm")),
    Sketcher.Constraint("DistanceX", -1, 1, 2, 3, Q("83.5 mm")),
    Sketcher.Constraint("DistanceX", -1, 1, 7, 3, Q("46.1 mm")),
    Sketcher.Constraint("DistanceY", 7, 3, -1, 1, Q("12.1 mm")),
    Sketcher.Constraint("DistanceY", 3, 1, 3, 2, Q("5.589932 mm")),
])
sketch3.setExpression("Constraints[13]", "Params.sketch3_radius")
sketch3.setExpression("Constraints[14]", "Params.sketch3_radius2")
sketch3.setExpression("Constraints[15]", "Params.sketch3_radius3")
pad3 = body.newObject("PartDesign::Pad", "Pad002")
pad3.Profile = sketch3
pad3.Type = "TwoLengths"
pad3.setExpression("Length", "Params.pad3_length")
pad3.setExpression("Length2", "Params.pad3_length2")

sketch4 = body.newObject("Sketcher::SketchObject", "Sketch003")
sketch4.AttachmentSupport = (doc.getObject("XY_Plane"), [""])
sketch4.MapMode = "FlatFace"
sketch4.addGeometry([
    Part.LineSegment(App.Vector(95.4, -46.6, 0), App.Vector(90.3, -34, 0)),
    Part.ArcOfCircle(Part.Circle(App.Vector(86.6, -35.5, 0), App.Vector(0, 0, 1), 4), math.radians(-32), math.radians(22)),
    Part.ArcOfCircle(Part.Circle(App.Vector(93.6, -40, 0), App.Vector(0, 0, 1), 4.4), math.radians(148), math.radians(256)),
    Part.ArcOfCircle(Part.Circle(App.Vector(91.7, -48.1, 0), App.Vector(0, 0, 1), 4), math.radians(22), math.radians(76)),
], False)
sketch4.addConstraint([
    Sketcher.Constraint("Tangent", 0, 2, 1, 2),
    Sketcher.Constraint("Tangent", 1, 1, 2, 1),
    Sketcher.Constraint("Tangent", 2, 2, 3, 2),
    Sketcher.Constraint("Tangent", 3, 1, 0, 1),
    Sketcher.Constraint("Equal", 1, 3),
    Sketcher.Constraint("Radius", 1, Q("4 mm")),
    Sketcher.Constraint("Angle", 0, Q("112 deg")),
    Sketcher.Constraint("DistanceY", 2, 3, -1, 1, Q("40 mm")),
    Sketcher.Constraint("Radius", 2, Q("4.376332 mm")),
    Sketcher.Constraint("DistanceX", 1, 3, 1, 1, Q("3.377399 mm")),
    Sketcher.Constraint("DistanceX", -1, 1, 1, 3, Q("86.55362 mm")),
])
sketch4.setExpression("Constraints[5]", "Params.sketch4_radius")
pad4 = body.newObject("PartDesign::Pad", "Pad003")
pad4.Profile = sketch4
pad4.Type = "TwoLengths"
pad4.setExpression("Length", "Params.pad4_length")
pad4.setExpression("Length2", "Params.pad4_length2")

sketch5 = body.newObject("Sketcher::SketchObject", "Sketch004")
sketch5.AttachmentSupport = (doc.getObject("XY_Plane"), [""])
sketch5.MapMode = "FlatFace"
sketch5.addGeometry([
    Part.LineSegment(App.Vector(14, -32.5, 0), App.Vector(14, -55.5, 0)),
    Part.LineSegment(App.Vector(14, -55.5, 0), App.Vector(28, -57.4, 0)),
    Part.LineSegment(App.Vector(28, -57.4, 0), App.Vector(28, -32.5, 0)),
    Part.ArcOfCircle(Part.Circle(App.Vector(24, -32.5, 0), App.Vector(0, 0, 1), 4), math.radians(0), math.radians(90)),
    Part.LineSegment(App.Vector(24, -28.5, 0), App.Vector(18, -28.5, 0)),
    Part.ArcOfCircle(Part.Circle(App.Vector(18, -32.5, 0), App.Vector(0, 0, 1), 4), math.radians(90), math.radians(180)),
    Part.LineSegment(App.Vector(42, -32.5, 0), App.Vector(42, -59.4, 0)),
    Part.LineSegment(App.Vector(42, -59.4, 0), App.Vector(56, -61.4, 0)),
    Part.LineSegment(App.Vector(56, -61.4, 0), App.Vector(56, -32.5, 0)),
    Part.ArcOfCircle(Part.Circle(App.Vector(52, -32.5, 0), App.Vector(0, 0, 1), 4), math.radians(0), math.radians(90)),
    Part.LineSegment(App.Vector(52, -28.5, 0), App.Vector(46, -28.5, 0)),
    Part.ArcOfCircle(Part.Circle(App.Vector(46, -32.5, 0), App.Vector(0, 0, 1), 4), math.radians(90), math.radians(180)),
], False)
sketch5.addConstraint([
    Sketcher.Constraint("Coincident", 0, 2, 1, 1),
    Sketcher.Constraint("Coincident", 1, 2, 2, 1),
    Sketcher.Constraint("Tangent", 2, 2, 3, 1),
    Sketcher.Constraint("Tangent", 3, 2, 4, 1),
    Sketcher.Constraint("Tangent", 4, 2, 5, 1),
    Sketcher.Constraint("Tangent", 5, 2, 0, 1),
    Sketcher.Constraint("Coincident", 6, 2, 7, 1),
    Sketcher.Constraint("Coincident", 7, 2, 8, 1),
    Sketcher.Constraint("Tangent", 8, 2, 9, 1),
    Sketcher.Constraint("Tangent", 9, 2, 10, 1),
    Sketcher.Constraint("Tangent", 10, 2, 11, 1),
    Sketcher.Constraint("Tangent", 11, 2, 6, 1),
    Sketcher.Constraint("Vertical", 0),
    Sketcher.Constraint("Vertical", 2),
    Sketcher.Constraint("Horizontal", 4),
    Sketcher.Constraint("Vertical", 6),
    Sketcher.Constraint("Vertical", 8),
    Sketcher.Constraint("Horizontal", 10),
    Sketcher.Constraint("Equal", 3, 5),
    Sketcher.Constraint("Equal", 5, 9),
    Sketcher.Constraint("Equal", 9, 11),
    Sketcher.Constraint("Parallel", 1, 7),
    Sketcher.Constraint("Horizontal", 5, 3, 9, 3),
    Sketcher.Constraint("Equal", 4, 10),
    Sketcher.Constraint("Radius", 3, Q("4 mm")),
    Sketcher.Constraint("DistanceX", 4, 2, 4, 1, Q("6 mm")),
    Sketcher.Constraint("Angle", 1, Q("-8 deg")),
    Sketcher.Constraint("DistanceX", -1, 1, 3, 3, Q("24 mm")),
    Sketcher.Constraint("DistanceX", -1, 1, 9, 3, Q("52 mm")),
    Sketcher.Constraint("DistanceY", 3, 3, -1, 1, Q("32.5 mm")),
    Sketcher.Constraint("DistanceY", 0, 2, 0, 1, Q("22.975679 mm")),
    Sketcher.Constraint("DistanceY", 6, 2, 6, 1, Q("26.910822 mm")),
])
sketch5.setExpression("Constraints[24]", "Params.sketch5_radius")
sketch5.setExpression("Constraints[25]", "Params.sketch5_width")
pad5 = body.newObject("PartDesign::Pad", "Pad004")
pad5.Profile = sketch5
pad5.Type = "TwoLengths"
pad5.setExpression("Length", "Params.pad5_length")
pad5.setExpression("Length2", "Params.pad5_length2")

sketch6 = body.newObject("Sketcher::SketchObject", "Sketch005")
sketch6.AttachmentSupport = (doc.getObject("XY_Plane"), [""])
sketch6.MapMode = "FlatFace"
add_polygon(sketch6, [(69.5, -22.7), (69.5, 0), (0, 0), (0, -14), (3.5, -14)])
sketch6.addConstraint([
    Sketcher.Constraint("Vertical", 0),
    Sketcher.Constraint("Horizontal", 1),
    Sketcher.Constraint("Vertical", 2),
    Sketcher.Constraint("Horizontal", 3),
    Sketcher.Constraint("Coincident", 1, 2, -1, 1),
    Sketcher.Constraint("DistanceY", 2, 2, 2, 1, Q("14 mm")),
    Sketcher.Constraint("DistanceX", 1, 2, 1, 1, Q("69.5 mm")),
    Sketcher.Constraint("DistanceX", 3, 1, 3, 2, Q("3.5 mm")),
    Sketcher.Constraint("DistanceY", 0, 1, 0, 2, Q("22.713532 mm")),
])
sketch6.setExpression("Constraints[10]", "Params.sketch6_height")
sketch6.setExpression("Constraints[11]", "Params.sketch6_width")
sketch6.setExpression("Constraints[12]", "Params.sketch6_width2")
pad6 = body.newObject("PartDesign::Pad", "Pad005")
pad6.Profile = sketch6
pad6.Type = "TwoLengths"
pad6.setExpression("Length", "Params.pad6_length")
pad6.setExpression("Length2", "Params.pad6_length2")

sketch7 = body.newObject("Sketcher::SketchObject", "Sketch006")
sketch7.AttachmentSupport = (doc.getObject("XZ_Plane"), [""])
sketch7.MapMode = "FlatFace"
sketch7.addGeometry([
    Part.Circle(App.Vector(20, 0, 0), App.Vector(0, 0, 1), 2.5),
    Part.Circle(App.Vector(108, 0, 0), App.Vector(0, 0, 1), 2.5),
], False)
sketch7.addConstraint([
    Sketcher.Constraint("Equal", 0, 1),
    Sketcher.Constraint("PointOnObject", 0, 3, -1),
    Sketcher.Constraint("PointOnObject", 1, 3, -1),
    Sketcher.Constraint("Diameter", 0, Q("5 mm")),
    Sketcher.Constraint("DistanceX", -1, 1, 0, 3, Q("20 mm")),
    Sketcher.Constraint("DistanceX", -1, 1, 1, 3, Q("108 mm")),
])
sketch7.setExpression("Constraints[3]", "Params.sketch7_diameter")
doc.recompute()
hole = body.newObject("PartDesign::Hole", "Hole")
hole.Profile = sketch7
hole.ThreadType = "None"
hole.setExpression("Diameter", "Params.hole_diameter")
hole.DepthType = "Dimension"
hole.setExpression("Depth", "Params.hole_depth")
hole.DrillPoint = "Angled"
hole.DrillPointAngle = 118
hole.Reversed = True

doc.recompute()
